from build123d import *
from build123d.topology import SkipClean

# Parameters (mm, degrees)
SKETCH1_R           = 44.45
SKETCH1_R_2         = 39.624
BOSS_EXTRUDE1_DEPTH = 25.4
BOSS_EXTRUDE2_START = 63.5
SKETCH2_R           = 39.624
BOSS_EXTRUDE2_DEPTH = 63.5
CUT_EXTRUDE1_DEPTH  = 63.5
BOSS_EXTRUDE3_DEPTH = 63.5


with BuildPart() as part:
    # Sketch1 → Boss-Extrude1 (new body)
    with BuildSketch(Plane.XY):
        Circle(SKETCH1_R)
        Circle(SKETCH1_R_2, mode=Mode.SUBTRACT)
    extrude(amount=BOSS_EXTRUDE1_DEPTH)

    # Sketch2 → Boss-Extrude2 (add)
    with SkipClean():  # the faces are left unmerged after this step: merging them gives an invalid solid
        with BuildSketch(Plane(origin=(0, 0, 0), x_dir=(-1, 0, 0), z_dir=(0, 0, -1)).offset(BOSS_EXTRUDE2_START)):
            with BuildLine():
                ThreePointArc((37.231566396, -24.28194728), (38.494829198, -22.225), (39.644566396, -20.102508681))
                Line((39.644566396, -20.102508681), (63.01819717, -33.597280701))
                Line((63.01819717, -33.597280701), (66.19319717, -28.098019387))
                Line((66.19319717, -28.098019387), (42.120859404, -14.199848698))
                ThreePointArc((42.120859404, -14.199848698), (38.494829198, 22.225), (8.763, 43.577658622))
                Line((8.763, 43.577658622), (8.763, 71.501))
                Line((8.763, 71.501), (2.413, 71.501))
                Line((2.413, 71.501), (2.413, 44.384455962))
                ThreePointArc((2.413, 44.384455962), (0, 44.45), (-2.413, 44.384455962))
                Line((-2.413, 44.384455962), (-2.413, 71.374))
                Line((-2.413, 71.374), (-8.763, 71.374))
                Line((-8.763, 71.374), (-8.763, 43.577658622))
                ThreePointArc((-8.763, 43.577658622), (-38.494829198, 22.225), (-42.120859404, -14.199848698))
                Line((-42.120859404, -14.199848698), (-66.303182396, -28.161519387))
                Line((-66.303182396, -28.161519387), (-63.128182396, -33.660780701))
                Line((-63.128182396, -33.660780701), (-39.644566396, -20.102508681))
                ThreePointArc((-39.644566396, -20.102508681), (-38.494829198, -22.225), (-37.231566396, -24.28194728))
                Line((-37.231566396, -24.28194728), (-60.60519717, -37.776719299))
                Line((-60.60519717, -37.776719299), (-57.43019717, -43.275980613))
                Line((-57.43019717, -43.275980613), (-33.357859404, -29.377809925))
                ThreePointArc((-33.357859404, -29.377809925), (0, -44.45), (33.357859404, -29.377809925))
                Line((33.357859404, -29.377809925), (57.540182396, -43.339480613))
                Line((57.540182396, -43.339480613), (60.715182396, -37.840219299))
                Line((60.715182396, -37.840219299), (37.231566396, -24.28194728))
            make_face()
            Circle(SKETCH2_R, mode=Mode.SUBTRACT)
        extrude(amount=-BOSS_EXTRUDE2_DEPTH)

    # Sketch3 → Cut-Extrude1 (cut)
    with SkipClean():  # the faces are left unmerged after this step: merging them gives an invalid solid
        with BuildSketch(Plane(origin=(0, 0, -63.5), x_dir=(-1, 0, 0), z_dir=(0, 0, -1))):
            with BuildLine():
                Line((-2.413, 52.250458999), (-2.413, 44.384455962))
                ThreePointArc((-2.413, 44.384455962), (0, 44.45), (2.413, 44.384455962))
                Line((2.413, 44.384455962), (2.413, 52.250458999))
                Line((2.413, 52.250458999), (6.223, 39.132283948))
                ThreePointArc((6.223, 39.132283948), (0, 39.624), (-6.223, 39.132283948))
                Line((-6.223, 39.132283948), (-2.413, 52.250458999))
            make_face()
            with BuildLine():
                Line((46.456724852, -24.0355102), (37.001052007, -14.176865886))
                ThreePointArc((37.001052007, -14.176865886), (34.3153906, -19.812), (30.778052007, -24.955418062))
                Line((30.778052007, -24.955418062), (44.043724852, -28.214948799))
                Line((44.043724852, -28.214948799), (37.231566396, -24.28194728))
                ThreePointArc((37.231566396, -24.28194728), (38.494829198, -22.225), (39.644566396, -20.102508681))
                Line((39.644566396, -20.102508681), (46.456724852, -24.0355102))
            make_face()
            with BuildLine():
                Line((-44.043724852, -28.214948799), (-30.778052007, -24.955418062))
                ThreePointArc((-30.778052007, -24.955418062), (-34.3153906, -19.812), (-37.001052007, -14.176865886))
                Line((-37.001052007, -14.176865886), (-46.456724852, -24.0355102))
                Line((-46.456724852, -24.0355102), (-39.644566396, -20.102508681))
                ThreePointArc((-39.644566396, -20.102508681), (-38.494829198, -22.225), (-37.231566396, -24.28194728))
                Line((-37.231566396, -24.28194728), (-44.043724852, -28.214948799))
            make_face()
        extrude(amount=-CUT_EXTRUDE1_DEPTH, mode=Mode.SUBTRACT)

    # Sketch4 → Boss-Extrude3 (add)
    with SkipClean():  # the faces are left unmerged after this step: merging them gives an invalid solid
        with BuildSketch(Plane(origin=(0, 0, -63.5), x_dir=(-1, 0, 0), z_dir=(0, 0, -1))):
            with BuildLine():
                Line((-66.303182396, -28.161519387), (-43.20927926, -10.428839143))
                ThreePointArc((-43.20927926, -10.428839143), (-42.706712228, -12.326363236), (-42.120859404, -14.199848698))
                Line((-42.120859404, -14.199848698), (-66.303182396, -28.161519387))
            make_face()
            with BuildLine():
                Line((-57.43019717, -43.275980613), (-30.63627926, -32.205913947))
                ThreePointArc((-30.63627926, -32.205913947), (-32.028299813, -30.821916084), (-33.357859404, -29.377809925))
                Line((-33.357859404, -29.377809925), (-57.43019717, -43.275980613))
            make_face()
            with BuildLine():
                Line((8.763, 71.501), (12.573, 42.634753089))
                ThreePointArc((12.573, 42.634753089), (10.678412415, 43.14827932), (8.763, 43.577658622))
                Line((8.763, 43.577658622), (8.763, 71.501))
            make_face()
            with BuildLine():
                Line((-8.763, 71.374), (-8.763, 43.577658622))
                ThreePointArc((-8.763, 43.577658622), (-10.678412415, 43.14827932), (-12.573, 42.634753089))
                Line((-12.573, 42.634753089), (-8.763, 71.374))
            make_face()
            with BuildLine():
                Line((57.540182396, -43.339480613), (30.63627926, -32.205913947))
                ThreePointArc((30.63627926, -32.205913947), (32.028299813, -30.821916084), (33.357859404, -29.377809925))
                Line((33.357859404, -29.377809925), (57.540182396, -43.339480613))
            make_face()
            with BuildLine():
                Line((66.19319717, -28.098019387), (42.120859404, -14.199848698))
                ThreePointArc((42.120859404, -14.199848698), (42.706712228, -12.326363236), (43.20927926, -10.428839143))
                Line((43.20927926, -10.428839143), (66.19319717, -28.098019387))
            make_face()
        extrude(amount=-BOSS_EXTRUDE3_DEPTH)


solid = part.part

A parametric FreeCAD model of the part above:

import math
import FreeCAD as App
import Part
import Sketcher
Q = App.Units.Quantity

doc = App.newDocument("Part")
params = doc.addObject("Spreadsheet::Sheet", "Params")
for row, (alias, value) in enumerate([
    ("sketch1_diameter", "3.5 in"),
    ("sketch1_diameter2", "3.12 in"),
    ("pad1_length", "1 in"),
    ("sketch2_diameter", "3.12 in"),
    ("sketch2_radius", "1.75 in"),
    ("sketch2_width", "0.25 in"),
    ("sketch2_length", "0.25 in"),
    ("pad2_length", "2.5 in"),
    ("sketch3_radius", "1.56 in"),
    ("sketch3_radius2", "1.75 in"),
    ("pocket1_length", "2.5 in"),
    ("sketch4_radius", "1.75 in"),
    ("pad3_length", "2.5 in"),
], start=1):
    params.set(f"A{row}", alias)
    params.set(f"B{row}", "=" + value)
    params.setAlias(f"B{row}", alias)

body = doc.addObject("PartDesign::Body", "Body")

sketch1 = doc.addObject("Sketcher::SketchObject", "Sketch")
body.addObject(sketch1)
sketch1.AttachmentSupport = (doc.XY_Plane, [""])
sketch1.MapMode = "FlatFace"
sketch1.addGeometry([
    Part.Circle(App.Vector(0, 0, 0), App.Vector(0, 0, 1), 44.45),
    Part.Circle(App.Vector(0, 0, 0), App.Vector(0, 0, 1), 39.624),
], False)
sketch1.addConstraint([
    Sketcher.Constraint("Coincident", 0, 3, -1, 1),
    Sketcher.Constraint("Coincident", 1, 3, -1, 1),
    Sketcher.Constraint("Diameter", 0, Q("3.5 in")),
    Sketcher.Constraint("Diameter", 1, Q("3.12 in")),
])
sketch1.setExpression("Constraints[2]", "Params.sketch1_diameter")
sketch1.setExpression("Constraints[3]", "Params.sketch1_diameter2")
pad1 = doc.addObject("PartDesign::Pad", "Pad")
body.addObject(pad1)
pad1.Profile = sketch1
pad1.setExpression("Length", "Params.pad1_length")

sketch2 = doc.addObject("Sketcher::SketchObject", "Sketch001")
body.addObject(sketch2)
sketch2.AttachmentSupport = (doc.XY_Plane, [""])
sketch2.MapMode = "FlatFace"
sketch2.AttachmentOffset = App.Placement(App.Vector(0, 0, -2.5 * 25.4), App.Rotation())
sketch2.addGeometry([
    Part.ArcOfCircle(Part.Circle(App.Vector(0, 0, 0), App.Vector(0, 0, 1), 44.45), math.radians(-153.111872), math.radians(-146.888128)),
    Part.LineSegment(App.Vector(-39.644566, -20.102509, 0), App.Vector(-63.018197, -33.597281, 0)),
    Part.LineSegment(App.Vector(-63.018197, -33.597281, 0), App.Vector(-66.193197, -28.098019, 0)),
    Part.LineSegment(App.Vector(-66.193197, -28.098019, 0), App.Vector(-42.120859, -14.199849, 0)),
    Part.ArcOfCircle(Part.Circle(App.Vector(0, 0, 0), App.Vector(0, 0, 1), 44.45), math.radians(101.369931), math.radians(198.630069)),
    Part.LineSegment(App.Vector(-8.763, 43.577659, 0), App.Vector(-8.763, 71.501, 0)),
    Part.LineSegment(App.Vector(-8.763, 71.501, 0), App.Vector(-2.413, 71.501, 0)),
    Part.LineSegment(App.Vector(-2.413, 71.501, 0), App.Vector(-2.413, 44.384456, 0)),
    Part.ArcOfCircle(Part.Circle(App.Vector(0, 0, 0), App.Vector(0, 0, 1), 44.45), math.radians(86.888128), math.radians(93.111872)),
    Part.LineSegment(App.Vector(2.413, 44.384456, 0), App.Vector(2.413, 71.374, 0)),
    Part.LineSegment(App.Vector(2.413, 71.374, 0), App.Vector(8.763, 71.374, 0)),
    Part.LineSegment(App.Vector(8.763, 71.374, 0), App.Vector(8.763, 43.577659, 0)),
    Part.ArcOfCircle(Part.Circle(App.Vector(0, 0, 0), App.Vector(0, 0, 1), 44.45), math.radians(-18.630069), math.radians(78.630069)),
    Part.LineSegment(App.Vector(42.120859, -14.199849, 0), App.Vector(66.303182, -28.161519, 0)),
    Part.LineSegment(App.Vector(66.303182, -28.161519, 0), App.Vector(63.128182, -33.660781, 0)),
    Part.LineSegment(App.Vector(63.128182, -33.660781, 0), App.Vector(39.644566, -20.102509, 0)),
    Part.ArcOfCircle(Part.Circle(App.Vector(0, 0, 0), App.Vector(0, 0, 1), 44.45), math.radians(-33.111872), math.radians(-26.888128)),
    Part.LineSegment(App.Vector(37.231566, -24.281947, 0), App.Vector(60.605197, -37.776719, 0)),
    Part.LineSegment(App.Vector(60.605197, -37.776719, 0), App.Vector(57.430197, -43.275981, 0)),
    Part.LineSegment(App.Vector(57.430197, -43.275981, 0), App.Vector(33.357859, -29.37781, 0)),
    Part.ArcOfCircle(Part.Circle(App.Vector(0, 0, 0), App.Vector(0, 0, 1), 44.45), math.radians(-138.630069), math.radians(-41.369931)),
    Part.LineSegment(App.Vector(-33.357859, -29.37781, 0), App.Vector(-57.540182, -43.339481, 0)),
    Part.LineSegment(App.Vector(-57.540182, -43.339481, 0), App.Vector(-60.715182, -37.840219, 0)),
    Part.LineSegment(App.Vector(-60.715182, -37.840219, 0), App.Vector(-37.231566, -24.281947, 0)),
    Part.Circle(App.Vector(0, 0, 0), App.Vector(0, 0, 1), 39.624),
], False)
sketch2.addConstraint([
    Sketcher.Constraint("Coincident", 0, 1, 1, 1),
    Sketcher.Constraint("Coincident", 1, 2, 2, 1),
    Sketcher.Constraint("Coincident", 2, 2, 3, 1),
    Sketcher.Constraint("Coincident", 3, 2, 4, 2),
    Sketcher.Constraint("Coincident", 4, 1, 5, 1),
    Sketcher.Constraint("Coincident", 5, 2, 6, 1),
    Sketcher.Constraint("Coincident", 6, 2, 7, 1),
    Sketcher.Constraint("Coincident", 7, 2, 8, 2),
    Sketcher.Constraint("Coincident", 8, 1, 9, 1),
    Sketcher.Constraint("Coincident", 9, 2, 10, 1),
    Sketcher.Constraint("Coincident", 10, 2, 11, 1),
    Sketcher.Constraint("Coincident", 11, 2, 12, 2),
    Sketcher.Constraint("Coincident", 12, 1, 13, 1),
    Sketcher.Constraint("Coincident", 13, 2, 14, 1),
    Sketcher.Constraint("Coincident", 14, 2, 15, 1),
    Sketcher.Constraint("Coincident", 15, 2, 16, 2),
    Sketcher.Constraint("Coincident", 16, 1, 17, 1),
    Sketcher.Constraint("Coincident", 17, 2, 18, 1),
    Sketcher.Constraint("Coincident", 18, 2, 19, 1),
    Sketcher.Constraint("Coincident", 19, 2, 20, 2),
    Sketcher.Constraint("Coincident", 20, 1, 21, 1),
    Sketcher.Constraint("Coincident", 21, 2, 22, 1),
    Sketcher.Constraint("Coincident", 22, 2, 23, 1),
    Sketcher.Constraint("Coincident", 23, 2, 0, 2),
    Sketcher.Constraint("Vertical", 5),
    Sketcher.Constraint("Horizontal", 6),
    Sketcher.Constraint("Vertical", 7),
    Sketcher.Constraint("Vertical", 9),
    Sketcher.Constraint("Horizontal", 10),
    Sketcher.Constraint("Vertical", 11),
    Sketcher.Constraint("Coincident", 0, 3, -1, 1),
    Sketcher.Constraint("Coincident", 4, 3, -1, 1),
    Sketcher.Constraint("Coincident", 8, 3, -1, 1),
    Sketcher.Constraint("Coincident", 12, 3, -1, 1),
    Sketcher.Constraint("Coincident", 16, 3, -1, 1),
    Sketcher.Constraint("Coincident", 20, 3, -1, 1),
    Sketcher.Constraint("Coincident", 24, 3, -1, 1),
    Sketcher.Constraint("Equal", 0, 4),
    Sketcher.Constraint("Equal", 4, 8),
    Sketcher.Constraint("Equal", 8, 12),
    Sketcher.Constraint("Equal", 12, 16),
    Sketcher.Constraint("Equal", 16, 20),
    Sketcher.Constraint("Perpendicular", 1, 2),
    Sketcher.Constraint("Perpendicular", 2, 3),
    Sketcher.Constraint("Perpendicular", 13, 14),
    Sketcher.Constraint("Perpendicular", 14, 15),
    Sketcher.Constraint("Parallel", 15, 17),
    Sketcher.Constraint("Perpendicular", 17, 18),
    Sketcher.Constraint("Perpendicular", 18, 19),
    Sketcher.Constraint("Parallel", 3, 21),
    Sketcher.Constraint("Perpendicular", 21, 22),
    Sketcher.Constraint("Perpendicular", 22, 23),
    Sketcher.Constraint("Horizontal", 7, 2, 8, 1),
    Sketcher.Constraint("Horizontal", 4, 1, 11, 2),
    Sketcher.Constraint("Horizontal", 3, 2, 12, 1),
    Sketcher.Constraint("Horizontal", 0, 1, 15, 2),
    Sketcher.Constraint("Horizontal", 19, 2, 20, 1),
    Sketcher.Constraint("Horizontal", 16, 1, 23, 2),
    Sketcher.Constraint("Equal", 2, 14),
    Sketcher.Constraint("Equal", 1, 17),
    Sketcher.Constraint("Equal", 14, 18),
    Sketcher.Constraint("Equal", 3, 19),
    Sketcher.Constraint("Equal", 13, 21),
    Sketcher.Constraint("Diameter", 24, Q("3.12 in")),
    Sketcher.Constraint("Radius", 0, Q("1.75 in")),
    Sketcher.Constraint("Angle", 1, Q("-150 deg")),
    Sketcher.Constraint("DistanceX", 6, 1, 6, 2, Q("0.25 in")),
    Sketcher.Constraint("Distance", 2, Q("0.25 in")),
    Sketcher.Constraint("DistanceY", -1, 1, 9, 2, Q("2.81 in")),
    Sketcher.Constraint("DistanceX", 7, 2, 8, 1, Q("0.19 in")),
    Sketcher.Constraint("DistanceY", -1, 1, 5, 2, Q("2.815 in")),
    Sketcher.Constraint("DistanceX", 16, 1, 15, 2, Q("0.095 in")),
    Sketcher.Constraint("DistanceY", 17, 2, 13, 2, 9.6152),
    Sketcher.Constraint("Distance", 3, 27.796341),
])
sketch2.setExpression("Constraints[63]", "Params.sketch2_diameter")
sketch2.setExpression("Constraints[64]", "Params.sketch2_radius")
sketch2.setExpression("Constraints[66]", "Params.sketch2_width")
sketch2.setExpression("Constraints[67]", "Params.sketch2_length")
pad2 = doc.addObject("PartDesign::Pad", "Pad001")
body.addObject(pad2)
pad2.Profile = sketch2
pad2.setExpression("Length", "Params.pad2_length")

sketch3 = doc.addObject("Sketcher::SketchObject", "Sketch002")
body.addObject(sketch3)
sketch3.AttachmentSupport = (doc.XY_Plane, [""])
sketch3.MapMode = "FlatFace"
sketch3.AttachmentOffset = App.Placement(App.Vector(0, 0, -2.5 * 25.4), App.Rotation())
sketch3.addGeometry([
    Part.LineSegment(App.Vector(2.413, 44.384456, 0), App.Vector(2.413, 52.250459, 0)),
    Part.LineSegment(App.Vector(2.413, 52.250459, 0), App.Vector(6.223, 39.132284, 0)),
    Part.ArcOfCircle(Part.Circle(App.Vector(0, 0, 0), App.Vector(0, 0, 1), 39.624), math.radians(80.964217), math.radians(99.035783)),
    Part.LineSegment(App.Vector(-6.223, 39.132284, 0), App.Vector(-2.413, 52.250459, 0)),
    Part.LineSegment(App.Vector(-2.413, 52.250459, 0), App.Vector(-2.413, 44.384456, 0)),
    Part.ArcOfCircle(Part.Circle(App.Vector(0, 0, 0), App.Vector(0, 0, 1), 44.45), math.radians(86.888128), math.radians(93.111872)),
    Part.LineSegment(App.Vector(-46.456725, -24.03551, 0), App.Vector(-37.001052, -14.176866, 0)),
    Part.ArcOfCircle(Part.Circle(App.Vector(0, 0, 0), App.Vector(0, 0, 1), 39.624), math.radians(-159.035783), math.radians(-140.964217)),
    Part.LineSegment(App.Vector(-30.778052, -24.955418, 0), App.Vector(-44.043725, -28.214949, 0)),
    Part.LineSegment(App.Vector(-44.043725, -28.214949, 0), App.Vector(-37.231566, -24.281947, 0)),
    Part.ArcOfCircle(Part.Circle(App.Vector(0, 0, 0), App.Vector(0, 0, 1), 44.45), math.radians(-153.111872), math.radians(-146.888128)),
    Part.LineSegment(App.Vector(-39.644566, -20.102509, 0), App.Vector(-46.456725, -24.03551, 0)),
    Part.LineSegment(App.Vector(44.043725, -28.214949, 0), App.Vector(30.778052, -24.955418, 0)),
    Part.ArcOfCircle(Part.Circle(App.Vector(0, 0, 0), App.Vector(0, 0, 1), 39.624), math.radians(-39.035783), math.radians(-20.964217)),
    Part.LineSegment(App.Vector(37.001052, -14.176866, 0), App.Vector(46.456725, -24.03551, 0)),
    Part.LineSegment(App.Vector(46.456725, -24.03551, 0), App.Vector(39.644566, -20.102509, 0)),
    Part.ArcOfCircle(Part.Circle(App.Vector(0, 0, 0), App.Vector(0, 0, 1), 44.45), math.radians(-33.111872), math.radians(-26.888128)),
    Part.LineSegment(App.Vector(37.231566, -24.281947, 0), App.Vector(44.043725, -28.214949, 0)),
], False)
sketch3.addConstraint([
    Sketcher.Constraint("Coincident", 0, 2, 1, 1),
    Sketcher.Constraint("Coincident", 1, 2, 2, 1),
    Sketcher.Constraint("Coincident", 2, 2, 3, 1),
    Sketcher.Constraint("Coincident", 3, 2, 4, 1),
    Sketcher.Constraint("Coincident", 4, 2, 5, 2),
    Sketcher.Constraint("Coincident", 5, 1, 0, 1),
    Sketcher.Constraint("Coincident", 6, 2, 7, 1),
    Sketcher.Constraint("Coincident", 7, 2, 8, 1),
    Sketcher.Constraint("Coincident", 8, 2, 9, 1),
    Sketcher.Constraint("Coincident", 9, 2, 10, 2),
    Sketcher.Constraint("Coincident", 10, 1, 11, 1),
    Sketcher.Constraint("Coincident", 11, 2, 6, 1),
    Sketcher.Constraint("Coincident", 12, 2, 13, 1),
    Sketcher.Constraint("Coincident", 13, 2, 14, 1),
    Sketcher.Constraint("Coincident", 14, 2, 15, 1),
    Sketcher.Constraint("Coincident", 15, 2, 16, 2),
    Sketcher.Constraint("Coincident", 16, 1, 17, 1),
    Sketcher.Constraint("Coincident", 17, 2, 12, 1),
    Sketcher.Constraint("Vertical", 0),
    Sketcher.Constraint("Vertical", 4),
    Sketcher.Constraint("Coincident", 2, 3, -1, 1),
    Sketcher.Constraint("Coincident", 5, 3, -1, 1),
    Sketcher.Constraint("Coincident", 7, 3, -1, 1),
    Sketcher.Constraint("Coincident", 10, 3, -1, 1),
    Sketcher.Constraint("Coincident", 13, 3, -1, 1),
    Sketcher.Constraint("Coincident", 16, 3, -1, 1),
    Sketcher.Constraint("Equal", 2, 7),
    Sketcher.Constraint("Equal", 5, 10),
    Sketcher.Constraint("Equal", 7, 13),
    Sketcher.Constraint("Equal", 10, 16),
    Sketcher.Constraint("Symmetric", 0, 2, 3, 2, -2),
    Sketcher.Constraint("Symmetric", 11, 2, 14, 2, -2),
    Sketcher.Constraint("Symmetric", 8, 2, 17, 2, -2),
    Sketcher.Constraint("Parallel", 9, 11),
    Sketcher.Constraint("Parallel", 15, 17),
    Sketcher.Constraint("Horizontal", 1, 2, 2, 2),
    Sketcher.Constraint("Horizontal", 7, 2, 12, 2),
    Sketcher.Constraint("Horizontal", 6, 2, 13, 2),
    Sketcher.Constraint("Horizontal", 10, 1, 15, 2),
    Sketcher.Constraint("Equal", 3, 6),
    Sketcher.Constraint("Equal", 6, 8),
    Sketcher.Constraint("Equal", 9, 11),
    Sketcher.Constraint("Radius", 2, Q("1.56 in")),
    Sketcher.Constraint("Radius", 5, Q("1.75 in")),
    Sketcher.Constraint("Angle", 9, Q("30 deg")),
    Sketcher.Constraint("DistanceX", 0, 2, 1, 2, Q("0.15 in")),
    Sketcher.Constraint("DistanceX", 2, 2, 1, 2, Q("0.49 in")),
    Sketcher.Constraint("DistanceX", 6, 2, 7, 2, Q("0.245 in")),
    Sketcher.Constraint("DistanceX", 10, 1, 9, 2, Q("0.095 in")),
    Sketcher.Constraint("DistanceY", 8, 2, 9, 2, 3.933002),
    Sketcher.Constraint("DistanceY", 0, 1, 0, 2, 7.866003),
])
sketch3.setExpression("Constraints[42]", "Params.sketch3_radius")
sketch3.setExpression("Constraints[43]", "Params.sketch3_radius2")
pocket1 = doc.addObject("PartDesign::Pocket", "Pocket")
body.addObject(pocket1)
pocket1.Profile = sketch3
pocket1.setExpression("Length", "Params.pocket1_length")
pocket1.Reversed = True

sketch4 = doc.addObject("Sketcher::SketchObject", "Sketch003")
body.addObject(sketch4)
sketch4.AttachmentSupport = (doc.XY_Plane, [""])
sketch4.MapMode = "FlatFace"
sketch4.AttachmentOffset = App.Placement(App.Vector(0, 0, -2.5 * 25.4), App.Rotation())
sketch4.addGeometry([
    Part.LineSegment(App.Vector(43.209279, -10.428839, 0), App.Vector(66.303182, -28.161519, 0)),
    Part.LineSegment(App.Vector(66.303182, -28.161519, 0), App.Vector(42.120859, -14.199849, 0)),
    Part.ArcOfCircle(Part.Circle(App.Vector(-0.000001, 0, 0), App.Vector(0, 0, 1), 44.450001), math.radians(-18.630069), math.radians(-13.569198)),
    Part.LineSegment(App.Vector(57.430197, -43.275981, 0), App.Vector(30.636279, -32.205914, 0)),
    Part.ArcOfCircle(Part.Circle(App.Vector(0, 0, 0), App.Vector(0, 0, 1), 44.45), math.radians(-46.430802), math.radians(-41.369931)),
    Part.LineSegment(App.Vector(33.357859, -29.37781, 0), App.Vector(57.430197, -43.275981, 0)),
    Part.LineSegment(App.Vector(-12.573, 42.634753, 0), App.Vector(-8.763, 71.501, 0)),
    Part.LineSegment(App.Vector(-8.763, 71.501, 0), App.Vector(-8.763, 43.577659, 0)),
    Part.ArcOfCircle(Part.Circle(App.Vector(0, 0, 0), App.Vector(0, 0, 1), 44.45), math.radians(101.369931), math.radians(106.430802)),
    Part.LineSegment(App.Vector(8.763, 43.577659, 0), App.Vector(8.763, 71.374, 0)),
    Part.LineSegment(App.Vector(8.763, 71.374, 0), App.Vector(12.573, 42.634753, 0)),
    Part.ArcOfCircle(Part.Circle(App.Vector(0, 0, 0), App.Vector(0, 0, 1), 44.45), math.radians(73.569198), math.radians(78.630069)),
    Part.LineSegment(App.Vector(-30.636279, -32.205914, 0), App.Vector(-57.540182, -43.339481, 0)),
    Part.LineSegment(App.Vector(-57.540182, -43.339481, 0), App.Vector(-33.357859, -29.37781, 0)),
    Part.ArcOfCircle(Part.Circle(App.Vector(0, 0, 0), App.Vector(0, 0, 1), 44.45), math.radians(-138.630069), math.radians(-133.569198)),
    Part.LineSegment(App.Vector(-42.120859, -14.199849, 0), App.Vector(-66.193197, -28.098019, 0)),
    Part.LineSegment(App.Vector(-66.193197, -28.098019, 0), App.Vector(-43.209279, -10.428839, 0)),
    Part.ArcOfCircle(Part.Circle(App.Vector(0.000001, 0, 0), App.Vector(0, 0, 1), 44.450001), math.radians(-166.430802), math.radians(-161.369931)),
], False)
sketch4.addConstraint([
    Sketcher.Constraint("Coincident", 0, 2, 1, 1),
    Sketcher.Constraint("Coincident", 1, 2, 2, 1),
    Sketcher.Constraint("Coincident", 2, 2, 0, 1),
    Sketcher.Constraint("Coincident", 3, 2, 4, 1),
    Sketcher.Constraint("Coincident", 4, 2, 5, 1),
    Sketcher.Constraint("Coincident", 5, 2, 3, 1),
    Sketcher.Constraint("Coincident", 6, 2, 7, 1),
    Sketcher.Constraint("Coincident", 7, 2, 8, 1),
    Sketcher.Constraint("Coincident", 8, 2, 6, 1),
    Sketcher.Constraint("Coincident", 9, 2, 10, 1),
    Sketcher.Constraint("Coincident", 10, 2, 11, 1),
    Sketcher.Constraint("Coincident", 11, 2, 9, 1),
    Sketcher.Constraint("Coincident", 12, 2, 13, 1),
    Sketcher.Constraint("Coincident", 13, 2, 14, 1),
    Sketcher.Constraint("Coincident", 14, 2, 12, 1),
    Sketcher.Constraint("Coincident", 15, 2, 16, 1),
    Sketcher.Constraint("Coincident", 16, 2, 17, 1),
    Sketcher.Constraint("Coincident", 17, 2, 15, 1),
    Sketcher.Constraint("Vertical", 7),
    Sketcher.Constraint("Vertical", 9),
    Sketcher.Constraint("Coincident", 2, 3, -1, 1),
    Sketcher.Constraint("Coincident", 4, 3, -1, 1),
    Sketcher.Constraint("Coincident", 8, 3, -1, 1),
    Sketcher.Constraint("Coincident", 11, 3, -1, 1),
    Sketcher.Constraint("Coincident", 14, 3, -1, 1),
    Sketcher.Constraint("Coincident", 17, 3, -1, 1),
    Sketcher.Constraint("Equal", 2, 4),
    Sketcher.Constraint("Equal", 4, 8),
    Sketcher.Constraint("Equal", 8, 11),
    Sketcher.Constraint("Equal", 11, 14),
    Sketcher.Constraint("Equal", 14, 17),
    Sketcher.Constraint("Parallel", 1, 5),
    Sketcher.Constraint("Parallel", 13, 15),
    Sketcher.Constraint("Horizontal", 8, 2, 10, 2),
    Sketcher.Constraint("Horizontal", 7, 2, 11, 2),
    Sketcher.Constraint("Horizontal", 4, 2, 13, 2),
    Sketcher.Constraint("Horizontal", 3, 2, 14, 2),
    Sketcher.Constraint("Horizontal", 2, 2, 16, 2),
    Sketcher.Constraint("Horizontal", 1, 2, 17, 2),
    Sketcher.Constraint("Equal", 0, 6),
    Sketcher.Constraint("Equal", 3, 10),
    Sketcher.Constraint("Equal", 6, 12),
    Sketcher.Constraint("Equal", 1, 13),
    Sketcher.Constraint("Equal", 5, 15),
    Sketcher.Constraint("Radius", 2, Q("1.75 in")),
    Sketcher.Constraint("Angle", 1, Q("150 deg")),
    Sketcher.Constraint("Angle", 13, Q("30 deg")),
    Sketcher.Constraint("DistanceY", -1, 1, 9, 2, Q("2.81 in")),
    Sketcher.Constraint("DistanceX", 8, 2, 7, 2, Q("0.15 in")),
    Sketcher.Constraint("DistanceX", 6, 2, 9, 2, Q("0.69 in")),
    Sketcher.Constraint("DistanceY", -1, 1, 6, 2, Q("2.815 in")),
    Sketcher.Constraint("DistanceX", 3, 2, 2, 2, Q("0.495 in")),
    Sketcher.Constraint("DistanceX", 4, 2, 1, 2, Q("0.345 in")),
    Sketcher.Constraint("Distance", 1, 27.923341),
])
sketch4.setExpression("Constraints[44]", "Params.sketch4_radius")
pad3 = doc.addObject("PartDesign::Pad", "Pad002")
body.addObject(pad3)
pad3.Profile = sketch4
pad3.setExpression("Length", "Params.pad3_length")

doc.recompute()
